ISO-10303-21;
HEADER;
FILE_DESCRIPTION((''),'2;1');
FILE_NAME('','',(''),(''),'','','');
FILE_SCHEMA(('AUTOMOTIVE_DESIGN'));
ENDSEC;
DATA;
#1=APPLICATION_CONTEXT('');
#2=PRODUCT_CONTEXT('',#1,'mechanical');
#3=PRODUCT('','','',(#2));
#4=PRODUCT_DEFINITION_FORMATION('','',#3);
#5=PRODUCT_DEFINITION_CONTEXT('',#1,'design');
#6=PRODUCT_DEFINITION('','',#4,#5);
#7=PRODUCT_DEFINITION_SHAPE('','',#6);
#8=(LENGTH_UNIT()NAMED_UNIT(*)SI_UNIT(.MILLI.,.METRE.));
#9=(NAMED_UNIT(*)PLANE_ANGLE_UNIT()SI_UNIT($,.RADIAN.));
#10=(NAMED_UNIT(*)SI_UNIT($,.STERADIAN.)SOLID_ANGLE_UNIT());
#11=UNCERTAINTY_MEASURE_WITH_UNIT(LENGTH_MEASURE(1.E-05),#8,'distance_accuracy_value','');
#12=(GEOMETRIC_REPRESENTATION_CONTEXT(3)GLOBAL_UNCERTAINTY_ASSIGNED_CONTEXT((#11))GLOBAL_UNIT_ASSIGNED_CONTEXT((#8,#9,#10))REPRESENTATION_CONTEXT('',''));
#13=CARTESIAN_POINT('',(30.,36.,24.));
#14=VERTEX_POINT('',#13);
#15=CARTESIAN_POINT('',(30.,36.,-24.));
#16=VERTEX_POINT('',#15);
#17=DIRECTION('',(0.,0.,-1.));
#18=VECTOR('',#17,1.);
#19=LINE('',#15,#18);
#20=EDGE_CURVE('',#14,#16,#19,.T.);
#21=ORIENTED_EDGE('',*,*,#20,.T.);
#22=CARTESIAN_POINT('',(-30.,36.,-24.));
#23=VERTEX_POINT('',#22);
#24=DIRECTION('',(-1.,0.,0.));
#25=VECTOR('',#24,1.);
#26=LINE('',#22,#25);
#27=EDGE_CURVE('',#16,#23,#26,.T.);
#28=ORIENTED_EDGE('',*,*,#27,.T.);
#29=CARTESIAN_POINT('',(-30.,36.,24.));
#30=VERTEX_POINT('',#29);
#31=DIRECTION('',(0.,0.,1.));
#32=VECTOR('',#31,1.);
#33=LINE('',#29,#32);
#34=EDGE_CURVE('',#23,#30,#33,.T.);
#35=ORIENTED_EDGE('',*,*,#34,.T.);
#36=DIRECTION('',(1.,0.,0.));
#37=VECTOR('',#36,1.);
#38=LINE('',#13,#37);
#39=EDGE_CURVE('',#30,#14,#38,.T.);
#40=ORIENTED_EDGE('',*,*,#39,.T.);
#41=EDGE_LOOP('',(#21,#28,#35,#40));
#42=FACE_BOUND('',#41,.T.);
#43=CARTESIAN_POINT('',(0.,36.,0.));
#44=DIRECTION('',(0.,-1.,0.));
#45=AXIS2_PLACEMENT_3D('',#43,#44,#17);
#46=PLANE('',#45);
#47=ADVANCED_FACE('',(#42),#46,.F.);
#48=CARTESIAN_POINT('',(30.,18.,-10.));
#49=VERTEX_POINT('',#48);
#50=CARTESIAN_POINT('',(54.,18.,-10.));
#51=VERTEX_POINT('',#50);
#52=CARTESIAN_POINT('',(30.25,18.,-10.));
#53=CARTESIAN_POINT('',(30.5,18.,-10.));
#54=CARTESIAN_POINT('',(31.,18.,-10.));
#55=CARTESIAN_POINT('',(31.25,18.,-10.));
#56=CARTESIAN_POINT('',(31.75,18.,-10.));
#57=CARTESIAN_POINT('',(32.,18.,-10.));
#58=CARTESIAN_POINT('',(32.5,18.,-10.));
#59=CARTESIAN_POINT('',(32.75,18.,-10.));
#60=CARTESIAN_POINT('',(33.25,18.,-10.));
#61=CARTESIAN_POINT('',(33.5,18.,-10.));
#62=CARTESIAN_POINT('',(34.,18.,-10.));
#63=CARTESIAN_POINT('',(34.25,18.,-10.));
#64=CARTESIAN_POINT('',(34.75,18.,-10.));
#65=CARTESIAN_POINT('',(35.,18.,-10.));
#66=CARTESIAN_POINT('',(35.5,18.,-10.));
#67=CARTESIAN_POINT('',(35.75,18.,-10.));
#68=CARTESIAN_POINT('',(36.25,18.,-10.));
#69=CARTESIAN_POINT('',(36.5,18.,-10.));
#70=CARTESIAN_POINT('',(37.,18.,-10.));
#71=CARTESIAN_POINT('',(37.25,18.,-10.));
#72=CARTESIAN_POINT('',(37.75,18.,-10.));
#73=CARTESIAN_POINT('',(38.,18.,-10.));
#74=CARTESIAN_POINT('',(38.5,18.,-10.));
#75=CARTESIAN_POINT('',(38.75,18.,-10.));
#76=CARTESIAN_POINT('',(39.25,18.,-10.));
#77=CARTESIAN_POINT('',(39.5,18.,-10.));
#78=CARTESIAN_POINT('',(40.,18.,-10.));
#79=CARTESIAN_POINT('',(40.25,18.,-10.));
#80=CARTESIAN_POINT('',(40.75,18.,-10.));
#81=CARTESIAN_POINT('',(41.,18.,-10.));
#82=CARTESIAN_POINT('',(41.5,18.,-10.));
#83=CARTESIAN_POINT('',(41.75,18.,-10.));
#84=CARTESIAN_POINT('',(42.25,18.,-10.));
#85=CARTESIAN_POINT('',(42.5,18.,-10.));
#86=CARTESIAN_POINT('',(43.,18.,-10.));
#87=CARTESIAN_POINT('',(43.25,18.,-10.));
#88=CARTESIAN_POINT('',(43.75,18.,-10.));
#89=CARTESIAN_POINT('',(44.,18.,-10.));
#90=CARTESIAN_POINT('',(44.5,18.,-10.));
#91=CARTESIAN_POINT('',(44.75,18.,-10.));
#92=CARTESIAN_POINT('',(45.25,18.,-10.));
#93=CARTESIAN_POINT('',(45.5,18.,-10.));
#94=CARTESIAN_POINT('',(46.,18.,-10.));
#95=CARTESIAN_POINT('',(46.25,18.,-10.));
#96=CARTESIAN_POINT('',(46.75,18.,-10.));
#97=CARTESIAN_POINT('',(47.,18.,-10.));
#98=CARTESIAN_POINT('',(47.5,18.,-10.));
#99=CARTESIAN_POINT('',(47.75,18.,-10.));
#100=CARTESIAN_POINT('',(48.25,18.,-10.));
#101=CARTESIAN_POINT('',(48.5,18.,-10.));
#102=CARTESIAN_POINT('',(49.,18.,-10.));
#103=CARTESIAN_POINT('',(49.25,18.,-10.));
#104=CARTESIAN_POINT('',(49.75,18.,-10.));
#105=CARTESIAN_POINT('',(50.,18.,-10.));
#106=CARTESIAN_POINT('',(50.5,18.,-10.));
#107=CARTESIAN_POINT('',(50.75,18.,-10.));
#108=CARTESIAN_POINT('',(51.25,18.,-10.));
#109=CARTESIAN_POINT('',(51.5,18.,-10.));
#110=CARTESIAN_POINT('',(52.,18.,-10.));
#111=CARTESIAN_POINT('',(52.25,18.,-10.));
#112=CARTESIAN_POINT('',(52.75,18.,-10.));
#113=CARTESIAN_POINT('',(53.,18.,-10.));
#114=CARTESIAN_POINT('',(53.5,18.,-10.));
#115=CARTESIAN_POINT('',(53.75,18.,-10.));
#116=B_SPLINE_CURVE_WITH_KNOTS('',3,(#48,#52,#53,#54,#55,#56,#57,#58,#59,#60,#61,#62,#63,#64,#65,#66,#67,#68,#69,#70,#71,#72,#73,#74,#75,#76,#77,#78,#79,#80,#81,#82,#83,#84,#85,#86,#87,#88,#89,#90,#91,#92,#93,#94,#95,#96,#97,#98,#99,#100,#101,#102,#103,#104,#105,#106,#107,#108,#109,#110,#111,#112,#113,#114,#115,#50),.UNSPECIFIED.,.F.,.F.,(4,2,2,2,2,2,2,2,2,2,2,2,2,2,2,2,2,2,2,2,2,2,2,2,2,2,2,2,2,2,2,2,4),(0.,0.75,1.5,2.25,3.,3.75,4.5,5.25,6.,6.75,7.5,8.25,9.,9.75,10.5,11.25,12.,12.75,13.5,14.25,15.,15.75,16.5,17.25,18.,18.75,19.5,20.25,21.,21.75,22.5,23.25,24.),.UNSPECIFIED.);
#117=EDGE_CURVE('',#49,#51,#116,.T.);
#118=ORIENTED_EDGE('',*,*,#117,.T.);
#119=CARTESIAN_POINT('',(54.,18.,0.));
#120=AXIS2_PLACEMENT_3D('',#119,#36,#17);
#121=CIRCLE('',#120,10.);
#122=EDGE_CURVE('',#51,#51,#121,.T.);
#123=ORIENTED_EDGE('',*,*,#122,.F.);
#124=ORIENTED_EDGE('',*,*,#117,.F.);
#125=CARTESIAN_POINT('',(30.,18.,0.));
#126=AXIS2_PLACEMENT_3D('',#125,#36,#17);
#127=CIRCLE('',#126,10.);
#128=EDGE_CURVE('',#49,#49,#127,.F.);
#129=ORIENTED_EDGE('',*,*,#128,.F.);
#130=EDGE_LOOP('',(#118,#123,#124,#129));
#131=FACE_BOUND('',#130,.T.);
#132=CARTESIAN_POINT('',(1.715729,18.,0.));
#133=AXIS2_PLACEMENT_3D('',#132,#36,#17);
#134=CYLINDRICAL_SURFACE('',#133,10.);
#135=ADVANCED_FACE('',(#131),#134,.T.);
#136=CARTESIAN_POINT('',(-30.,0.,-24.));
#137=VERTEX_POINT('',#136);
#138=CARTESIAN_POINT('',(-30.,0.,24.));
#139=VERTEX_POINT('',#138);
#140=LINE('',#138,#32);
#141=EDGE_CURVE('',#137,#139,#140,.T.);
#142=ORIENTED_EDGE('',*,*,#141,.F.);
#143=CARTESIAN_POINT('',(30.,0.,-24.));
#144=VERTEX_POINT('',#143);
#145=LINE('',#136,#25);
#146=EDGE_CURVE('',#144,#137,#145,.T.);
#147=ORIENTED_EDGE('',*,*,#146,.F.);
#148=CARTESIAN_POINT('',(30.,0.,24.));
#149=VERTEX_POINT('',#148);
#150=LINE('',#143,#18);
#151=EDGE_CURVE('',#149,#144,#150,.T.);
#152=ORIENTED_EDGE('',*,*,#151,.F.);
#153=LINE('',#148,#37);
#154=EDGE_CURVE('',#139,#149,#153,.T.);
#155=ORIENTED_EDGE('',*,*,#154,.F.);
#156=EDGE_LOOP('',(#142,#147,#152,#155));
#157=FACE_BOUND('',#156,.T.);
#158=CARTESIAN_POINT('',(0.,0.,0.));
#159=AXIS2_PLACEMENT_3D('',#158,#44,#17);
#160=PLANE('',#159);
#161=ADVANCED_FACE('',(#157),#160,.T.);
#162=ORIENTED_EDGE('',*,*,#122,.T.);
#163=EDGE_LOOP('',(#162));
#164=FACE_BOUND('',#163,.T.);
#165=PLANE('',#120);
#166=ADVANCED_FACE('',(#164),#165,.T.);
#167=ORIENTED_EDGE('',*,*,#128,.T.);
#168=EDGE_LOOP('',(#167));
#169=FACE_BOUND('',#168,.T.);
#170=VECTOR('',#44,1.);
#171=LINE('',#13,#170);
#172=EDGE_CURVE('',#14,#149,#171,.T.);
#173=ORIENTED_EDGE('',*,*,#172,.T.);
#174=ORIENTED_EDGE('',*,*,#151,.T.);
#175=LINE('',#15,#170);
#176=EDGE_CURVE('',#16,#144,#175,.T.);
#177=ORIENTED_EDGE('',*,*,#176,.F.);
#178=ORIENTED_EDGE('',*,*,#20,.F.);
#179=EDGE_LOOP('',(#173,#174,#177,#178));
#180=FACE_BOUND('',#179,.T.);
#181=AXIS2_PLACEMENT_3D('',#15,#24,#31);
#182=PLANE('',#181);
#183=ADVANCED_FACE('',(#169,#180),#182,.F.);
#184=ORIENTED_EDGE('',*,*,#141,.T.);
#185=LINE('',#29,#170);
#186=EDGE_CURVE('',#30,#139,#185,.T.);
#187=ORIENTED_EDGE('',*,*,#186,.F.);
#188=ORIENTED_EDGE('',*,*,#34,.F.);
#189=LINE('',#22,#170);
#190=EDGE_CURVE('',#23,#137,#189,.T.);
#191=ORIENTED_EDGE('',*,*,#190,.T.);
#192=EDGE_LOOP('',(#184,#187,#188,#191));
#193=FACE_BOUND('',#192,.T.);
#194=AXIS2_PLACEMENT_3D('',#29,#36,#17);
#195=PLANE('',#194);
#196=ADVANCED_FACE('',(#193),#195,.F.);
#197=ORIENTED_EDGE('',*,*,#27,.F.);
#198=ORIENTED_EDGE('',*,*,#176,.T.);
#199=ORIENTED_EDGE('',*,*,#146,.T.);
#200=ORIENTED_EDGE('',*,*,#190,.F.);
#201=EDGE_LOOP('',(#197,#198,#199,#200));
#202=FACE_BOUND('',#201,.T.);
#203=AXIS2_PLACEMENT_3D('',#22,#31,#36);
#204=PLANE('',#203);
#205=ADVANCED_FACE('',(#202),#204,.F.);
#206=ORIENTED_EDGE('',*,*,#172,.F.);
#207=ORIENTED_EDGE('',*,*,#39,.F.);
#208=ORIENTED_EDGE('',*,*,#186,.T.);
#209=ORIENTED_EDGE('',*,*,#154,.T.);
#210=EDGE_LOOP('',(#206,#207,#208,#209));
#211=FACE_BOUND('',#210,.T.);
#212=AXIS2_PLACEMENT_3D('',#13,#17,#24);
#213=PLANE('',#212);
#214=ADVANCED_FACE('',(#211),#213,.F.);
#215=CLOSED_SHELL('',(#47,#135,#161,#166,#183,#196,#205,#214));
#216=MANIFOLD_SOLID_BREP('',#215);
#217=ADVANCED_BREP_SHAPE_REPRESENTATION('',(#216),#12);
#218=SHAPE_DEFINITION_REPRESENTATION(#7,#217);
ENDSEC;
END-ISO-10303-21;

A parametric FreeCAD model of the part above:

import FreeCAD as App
import Part
import Sketcher
Q = App.Units.Quantity


def add_polygon(sketch, points):
    """Adds a closed chain of lines whose ends are joined by coincident constraints."""
    first, n = sketch.GeometryCount, len(points)
    for a, b in zip(points, points[1:] + points[:1]):
        sketch.addGeometry(Part.LineSegment(App.Vector(*a, 0), App.Vector(*b, 0)), False)
    for i in range(n):
        sketch.addConstraint(Sketcher.Constraint("Coincident", first + i, 2, first + (i + 1) % n, 1))

doc = App.newDocument("Part")
body = doc.addObject("PartDesign::Body", "Body")

# Sketch on XZ plane
sketch1 = body.newObject("Sketcher::SketchObject", "Sketch")
sketch1.AttachmentSupport = (doc.getObject("XZ_Plane"), [""])
sketch1.MapMode = "FlatFace"
add_polygon(sketch1, [(-30, -24), (-30, 24), (30, 24), (30, -24)])  # lines 0-3
sketch1.addConstraint(Sketcher.Constraint("Vertical", 0))
sketch1.addConstraint(Sketcher.Constraint("Horizontal", 1))
sketch1.addConstraint(Sketcher.Constraint("Vertical", 2))
sketch1.addConstraint(Sketcher.Constraint("Horizontal", 3))
sketch1.addConstraint(Sketcher.Constraint("Symmetric", 0, 2, 2, 2, -1, 1))
sketch1.addConstraint(Sketcher.Constraint("DistanceX", 1, 1, 1, 2, Q("60 mm")))
sketch1.addConstraint(Sketcher.Constraint("DistanceY", 0, 1, 0, 2, Q("48 mm")))
pad1 = body.newObject("PartDesign::Pad", "Pad")
pad1.Profile = sketch1
pad1.Length = 36
pad1.Reversed = True

# Sketch on YZ plane
sketch2 = body.newObject("Sketcher::SketchObject", "Sketch001")
sketch2.AttachmentSupport = (doc.getObject("YZ_Plane"), [""])
sketch2.MapMode = "FlatFace"
sketch2.AttachmentOffset = App.Placement(App.Vector(0, 0, 54), App.Rotation())
sketch2.addGeometry(Part.Circle(App.Vector(18, 0, 0), App.Vector(0, 0, 1), 10), False)
sketch2.addConstraint(Sketcher.Constraint("PointOnObject", 0, 3, -1))
sketch2.addConstraint(Sketcher.Constraint("Diameter", 0, Q("20 mm")))
sketch2.addConstraint(Sketcher.Constraint("DistanceX", -1, 1, 0, 3, Q("18 mm")))
pad2 = body.newObject("PartDesign::Pad", "Pad001")
pad2.Profile = sketch2
pad2.Type = "UpToFirst"
pad2.Reversed = True

doc.recompute()
